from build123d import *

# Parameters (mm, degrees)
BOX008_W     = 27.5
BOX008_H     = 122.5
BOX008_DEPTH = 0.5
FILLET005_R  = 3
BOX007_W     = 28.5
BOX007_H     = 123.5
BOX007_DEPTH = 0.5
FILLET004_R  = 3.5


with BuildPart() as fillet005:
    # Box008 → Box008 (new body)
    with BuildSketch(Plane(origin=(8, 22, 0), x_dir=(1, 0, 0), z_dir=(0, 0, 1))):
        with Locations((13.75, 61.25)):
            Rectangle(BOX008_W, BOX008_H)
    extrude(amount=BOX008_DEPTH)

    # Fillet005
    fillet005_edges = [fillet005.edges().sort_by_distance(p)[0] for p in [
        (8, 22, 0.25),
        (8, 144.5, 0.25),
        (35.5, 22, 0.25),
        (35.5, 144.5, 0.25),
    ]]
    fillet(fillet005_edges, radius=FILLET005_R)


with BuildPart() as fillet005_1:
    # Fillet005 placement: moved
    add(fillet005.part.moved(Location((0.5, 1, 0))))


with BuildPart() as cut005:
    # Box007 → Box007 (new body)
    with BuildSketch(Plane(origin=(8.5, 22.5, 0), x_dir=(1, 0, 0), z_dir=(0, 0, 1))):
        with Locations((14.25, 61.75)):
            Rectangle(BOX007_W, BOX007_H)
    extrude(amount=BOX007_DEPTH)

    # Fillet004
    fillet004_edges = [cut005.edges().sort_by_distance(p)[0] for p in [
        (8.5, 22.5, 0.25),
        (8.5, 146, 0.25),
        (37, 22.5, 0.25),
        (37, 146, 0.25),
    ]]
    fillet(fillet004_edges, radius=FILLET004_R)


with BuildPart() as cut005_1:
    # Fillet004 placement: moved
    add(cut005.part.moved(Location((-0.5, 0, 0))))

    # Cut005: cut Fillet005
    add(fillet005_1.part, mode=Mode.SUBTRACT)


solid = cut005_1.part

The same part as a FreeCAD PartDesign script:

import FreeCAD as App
import Part
import Sketcher

V = App.Vector


def edges_at(feature, points):
    """Names of the edges that pass closest to the given points."""
    edges = feature.Shape.Edges
    near = lambda p: min(range(len(edges)), key=lambda i: edges[i].distToShape(Part.Vertex(*p))[0])
    return sorted({f"Edge{near(p) + 1}" for p in points})


def add_polygon(sketch, points):
    """Adds a closed chain of lines whose ends are joined by coincident constraints."""
    first, n = sketch.GeometryCount, len(points)
    for a, b in zip(points, points[1:] + points[:1]):
        sketch.addGeometry(Part.LineSegment(App.Vector(*a, 0), App.Vector(*b, 0)), False)
    for i in range(n):
        sketch.addConstraint(Sketcher.Constraint("Coincident", first + i, 2, first + (i + 1) % n, 1))

doc = App.newDocument("Part")
body = doc.addObject("PartDesign::Body", "Body")

# Sketch on XY plane
sketch1 = body.newObject("Sketcher::SketchObject", "Sketch")
sketch1.AttachmentSupport = (doc.getObject("XY_Plane"), [""])
sketch1.MapMode = "FlatFace"
add_polygon(sketch1, [(8, 144.5), (8, 22), (35.5, 22), (35.5, 144.5)])  # lines 0-3
sketch1.addConstraint([
    Sketcher.Constraint("Vertical", 0),
    Sketcher.Constraint("Horizontal", 1),
    Sketcher.Constraint("Vertical", 2),
    Sketcher.Constraint("Horizontal", 3),
    Sketcher.Constraint("DistanceX", 1, 1, 1, 2, 27.5),
    Sketcher.Constraint("DistanceY", 0, 2, 0, 1, 122.5),
    Sketcher.Constraint("DistanceX", -1, 1, 0, 2, 8.0),
    Sketcher.Constraint("DistanceY", -1, 1, 0, 2, 22.0),
])
pad1 = body.newObject("PartDesign::Pad", "Pad")
pad1.Profile = sketch1
pad1.Length = 0.5
doc.recompute()

fillet = body.newObject("PartDesign::Fillet", "Fillet")
fillet.Base = (pad1, edges_at(pad1, [
    (8, 22, 0.25),
    (8, 144.5, 0.25),
    (35.5, 22, 0.25),
    (35.5, 144.5, 0.25),
]))
fillet.Radius = 3
body2 = doc.addObject("PartDesign::Body", "Body001")
doc.recompute()

body.Placement = App.Placement(V(0.5, 1, 0), App.Rotation(V(0, 0, 1), 0))
boolean = body2.newObject("PartDesign::Boolean", "Boolean")
boolean.Type = "Fuse"
boolean.addObjects([body])
body3 = doc.addObject("PartDesign::Body", "Body002")

# Sketch on XY plane
sketch2 = body3.newObject("Sketcher::SketchObject", "Sketch001")
sketch2.AttachmentSupport = (doc.getObject("XY_Plane002"), [""])
sketch2.MapMode = "FlatFace"
add_polygon(sketch2, [(8.5, 146), (8.5, 22.5), (37, 22.5), (37, 146)])  # lines 0-3
sketch2.addConstraint([
    Sketcher.Constraint("Vertical", 0),
    Sketcher.Constraint("Horizontal", 1),
    Sketcher.Constraint("Vertical", 2),
    Sketcher.Constraint("Horizontal", 3),
    Sketcher.Constraint("DistanceX", 1, 1, 1, 2, 28.5),
    Sketcher.Constraint("DistanceY", 0, 2, 0, 1, 123.5),
    Sketcher.Constraint("DistanceX", -1, 1, 1, 2, 37.0),
    Sketcher.Constraint("DistanceY", -1, 1, 2, 2, 146.0),
])
pad2 = body3.newObject("PartDesign::Pad", "Pad001")
pad2.Profile = sketch2
pad2.Length = 0.5
doc.recompute()

fillet2 = body3.newObject("PartDesign::Fillet", "Fillet001")
fillet2.Base = (pad2, edges_at(pad2, [
    (8.5, 22.5, 0.25),
    (8.5, 146, 0.25),
    (37, 22.5, 0.25),
    (37, 146, 0.25),
]))
fillet2.Radius = 3.5
body4 = doc.addObject("PartDesign::Body", "Body003")
doc.recompute()

body3.Placement = App.Placement(V(-0.5, 0, 0), App.Rotation(V(0, 0, 1), 0))
boolean2 = body4.newObject("PartDesign::Boolean", "Boolean001")
boolean2.Type = "Fuse"
boolean2.addObjects([body3])
doc.recompute()

boolean3 = body4.newObject("PartDesign::Boolean", "Boolean002")
boolean3.Type = "Cut"
boolean3.addObjects([body2])

doc.recompute()
